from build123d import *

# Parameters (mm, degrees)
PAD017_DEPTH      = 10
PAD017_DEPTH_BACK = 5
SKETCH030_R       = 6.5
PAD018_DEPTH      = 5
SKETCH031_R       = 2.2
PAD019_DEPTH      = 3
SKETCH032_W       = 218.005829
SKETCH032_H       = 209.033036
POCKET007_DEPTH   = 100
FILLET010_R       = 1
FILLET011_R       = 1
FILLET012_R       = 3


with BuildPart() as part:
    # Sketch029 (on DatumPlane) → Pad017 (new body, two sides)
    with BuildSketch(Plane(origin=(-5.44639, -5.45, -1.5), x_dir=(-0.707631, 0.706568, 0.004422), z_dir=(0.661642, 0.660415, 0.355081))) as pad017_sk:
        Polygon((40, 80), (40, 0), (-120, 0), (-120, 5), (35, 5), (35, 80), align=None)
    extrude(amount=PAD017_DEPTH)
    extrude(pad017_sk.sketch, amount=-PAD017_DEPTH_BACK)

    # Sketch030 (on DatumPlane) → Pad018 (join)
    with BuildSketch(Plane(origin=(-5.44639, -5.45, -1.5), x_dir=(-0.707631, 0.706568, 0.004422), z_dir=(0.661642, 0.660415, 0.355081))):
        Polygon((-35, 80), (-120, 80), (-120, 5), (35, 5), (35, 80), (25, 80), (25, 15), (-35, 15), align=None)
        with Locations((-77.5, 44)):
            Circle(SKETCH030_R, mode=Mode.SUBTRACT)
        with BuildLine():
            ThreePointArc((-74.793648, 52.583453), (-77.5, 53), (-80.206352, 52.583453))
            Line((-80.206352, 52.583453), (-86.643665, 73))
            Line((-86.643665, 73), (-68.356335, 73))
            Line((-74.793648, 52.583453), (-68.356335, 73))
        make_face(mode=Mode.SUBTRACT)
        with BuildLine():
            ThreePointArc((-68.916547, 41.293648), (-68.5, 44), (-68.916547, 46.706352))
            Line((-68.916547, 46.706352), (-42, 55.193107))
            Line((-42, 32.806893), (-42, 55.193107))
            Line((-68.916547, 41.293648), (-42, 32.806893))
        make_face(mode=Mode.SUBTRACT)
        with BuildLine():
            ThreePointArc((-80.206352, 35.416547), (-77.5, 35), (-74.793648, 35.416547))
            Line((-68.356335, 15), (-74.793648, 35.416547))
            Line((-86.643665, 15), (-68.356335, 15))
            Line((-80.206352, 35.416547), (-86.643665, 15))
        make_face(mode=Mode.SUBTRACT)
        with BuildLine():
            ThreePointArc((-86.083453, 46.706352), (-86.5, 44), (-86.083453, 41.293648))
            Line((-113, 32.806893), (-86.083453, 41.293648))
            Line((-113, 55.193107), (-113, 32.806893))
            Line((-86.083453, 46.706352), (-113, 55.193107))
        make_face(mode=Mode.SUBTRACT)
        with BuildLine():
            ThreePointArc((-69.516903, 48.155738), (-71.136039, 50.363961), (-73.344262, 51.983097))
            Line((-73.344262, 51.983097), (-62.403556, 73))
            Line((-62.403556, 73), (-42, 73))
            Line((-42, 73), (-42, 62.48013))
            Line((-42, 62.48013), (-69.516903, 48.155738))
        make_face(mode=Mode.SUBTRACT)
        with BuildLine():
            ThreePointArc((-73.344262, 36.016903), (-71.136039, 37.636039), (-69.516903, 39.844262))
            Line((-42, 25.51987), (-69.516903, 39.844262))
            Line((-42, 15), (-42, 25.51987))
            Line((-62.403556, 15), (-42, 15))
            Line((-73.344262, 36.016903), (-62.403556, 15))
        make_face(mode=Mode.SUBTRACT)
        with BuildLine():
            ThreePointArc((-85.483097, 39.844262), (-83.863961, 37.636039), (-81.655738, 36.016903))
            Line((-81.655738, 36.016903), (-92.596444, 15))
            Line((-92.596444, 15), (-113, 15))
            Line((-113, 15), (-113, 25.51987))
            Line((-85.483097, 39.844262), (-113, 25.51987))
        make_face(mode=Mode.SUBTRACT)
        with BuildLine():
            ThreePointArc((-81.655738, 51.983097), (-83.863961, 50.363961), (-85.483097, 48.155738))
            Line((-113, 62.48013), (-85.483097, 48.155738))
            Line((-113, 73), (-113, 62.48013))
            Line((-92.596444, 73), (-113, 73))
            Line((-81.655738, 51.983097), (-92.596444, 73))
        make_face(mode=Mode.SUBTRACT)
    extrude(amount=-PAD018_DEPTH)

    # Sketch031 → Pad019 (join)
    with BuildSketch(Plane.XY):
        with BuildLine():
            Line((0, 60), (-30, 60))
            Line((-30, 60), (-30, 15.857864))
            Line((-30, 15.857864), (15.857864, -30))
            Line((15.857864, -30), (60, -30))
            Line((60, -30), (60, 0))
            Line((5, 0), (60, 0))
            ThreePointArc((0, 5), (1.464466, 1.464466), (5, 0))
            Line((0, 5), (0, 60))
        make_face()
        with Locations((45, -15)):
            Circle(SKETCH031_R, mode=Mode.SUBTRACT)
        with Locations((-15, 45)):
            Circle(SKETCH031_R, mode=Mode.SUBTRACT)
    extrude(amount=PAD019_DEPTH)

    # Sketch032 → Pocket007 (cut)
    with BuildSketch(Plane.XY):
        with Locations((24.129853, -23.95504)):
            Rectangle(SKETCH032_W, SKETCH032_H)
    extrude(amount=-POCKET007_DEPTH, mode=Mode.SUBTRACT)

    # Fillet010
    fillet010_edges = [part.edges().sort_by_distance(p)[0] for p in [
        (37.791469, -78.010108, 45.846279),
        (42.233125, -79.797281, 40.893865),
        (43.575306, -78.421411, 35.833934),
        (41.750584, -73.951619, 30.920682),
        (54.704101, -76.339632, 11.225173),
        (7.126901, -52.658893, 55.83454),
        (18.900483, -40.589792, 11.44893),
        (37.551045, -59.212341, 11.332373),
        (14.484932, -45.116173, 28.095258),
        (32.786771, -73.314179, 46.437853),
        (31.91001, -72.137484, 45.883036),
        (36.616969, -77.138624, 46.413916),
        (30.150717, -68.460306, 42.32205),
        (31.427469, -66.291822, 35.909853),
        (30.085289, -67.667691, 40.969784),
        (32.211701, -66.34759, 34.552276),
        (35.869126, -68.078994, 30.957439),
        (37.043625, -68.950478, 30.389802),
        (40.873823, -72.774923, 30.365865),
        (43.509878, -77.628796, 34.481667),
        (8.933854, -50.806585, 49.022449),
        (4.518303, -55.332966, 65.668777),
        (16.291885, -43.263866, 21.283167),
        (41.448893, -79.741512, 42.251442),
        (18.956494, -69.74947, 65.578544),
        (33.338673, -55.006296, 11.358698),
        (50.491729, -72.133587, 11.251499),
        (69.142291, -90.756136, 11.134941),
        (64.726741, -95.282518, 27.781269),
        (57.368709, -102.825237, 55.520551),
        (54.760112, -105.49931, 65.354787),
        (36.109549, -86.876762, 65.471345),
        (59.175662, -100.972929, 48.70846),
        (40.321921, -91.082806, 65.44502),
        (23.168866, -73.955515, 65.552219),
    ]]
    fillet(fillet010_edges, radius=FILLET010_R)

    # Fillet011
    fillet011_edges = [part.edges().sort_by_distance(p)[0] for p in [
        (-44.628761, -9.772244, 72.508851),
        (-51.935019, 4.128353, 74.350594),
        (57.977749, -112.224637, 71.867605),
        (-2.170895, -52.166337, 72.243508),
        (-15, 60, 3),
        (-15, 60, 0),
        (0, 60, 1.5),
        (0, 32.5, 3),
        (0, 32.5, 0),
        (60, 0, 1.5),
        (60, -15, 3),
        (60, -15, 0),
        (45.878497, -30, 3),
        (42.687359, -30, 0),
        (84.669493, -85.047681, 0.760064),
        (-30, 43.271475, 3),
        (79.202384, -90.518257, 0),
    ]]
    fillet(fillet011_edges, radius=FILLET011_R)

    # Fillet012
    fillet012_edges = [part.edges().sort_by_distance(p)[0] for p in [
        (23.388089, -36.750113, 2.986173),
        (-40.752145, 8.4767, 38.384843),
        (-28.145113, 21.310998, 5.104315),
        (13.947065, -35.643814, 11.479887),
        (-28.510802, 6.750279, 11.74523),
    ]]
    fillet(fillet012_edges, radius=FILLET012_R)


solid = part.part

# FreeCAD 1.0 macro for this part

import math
import FreeCAD as App
import Part
import Sketcher
from FreeCAD import Vector
Q = App.Units.Quantity


def edges_at(feature, points):
    """Names of the edges that pass closest to the given points."""
    edges = feature.Shape.Edges
    near = lambda p: min(range(len(edges)), key=lambda i: edges[i].distToShape(Part.Vertex(*p))[0])
    return sorted({f"Edge{near(p) + 1}" for p in points})


def add_polygon(sketch, points):
    """Adds a closed chain of lines whose ends are joined by coincident constraints."""
    first, n = sketch.GeometryCount, len(points)
    for a, b in zip(points, points[1:] + points[:1]):
        sketch.addGeometry(Part.LineSegment(App.Vector(*a, 0), App.Vector(*b, 0)), False)
    for i in range(n):
        sketch.addConstraint(Sketcher.Constraint("Coincident", first + i, 2, first + (i + 1) % n, 1))

doc = App.newDocument("Part")
params = doc.addObject("Spreadsheet::Sheet", "Params")
for row, (alias, value) in enumerate([
    ("sketch1_width", "5 mm"),
    ("sketch1_width2", "155 mm"),
    ("sketch1_height", "80 mm"),
    ("pad1_length", "10 mm"),
    ("pad1_length2", "5 mm"),
    ("sketch2_diameter", "13 mm"),
    ("sketch2_width", "85 mm"),
    ("sketch2_width2", "155 mm"),
    ("sketch2_width3", "10 mm"),
    ("sketch2_height", "75 mm"),
    ("pad2_length", "5 mm"),
    ("sketch3_radius", "5 mm"),
    ("sketch3_diameter", "4.4 mm"),
    ("sketch3_width", "30 mm"),
    ("sketch3_width2", "55 mm"),
    ("pad3_length", "3 mm"),
    ("pocket1_length", "100 mm"),
    ("fillet_radius", "1 mm"),
    ("fillet2_radius", "1 mm"),
    ("fillet3_radius", "3 mm"),
], start=1):
    params.set(f"A{row}", alias)
    params.set(f"B{row}", "=" + value)
    params.setAlias(f"B{row}", alias)

body = doc.addObject("PartDesign::Body", "Body")

# Sketch on an angled plane
sketch1 = body.newObject("Sketcher::SketchObject", "Sketch")
sketch1.Placement = App.Placement(Vector(-5.44639, -5.45, -1.5), App.Rotation(Vector(-0.707631091, 0.706568245, 0.004422042), Vector(-0.247968499, -0.254192085, 0.934825122), Vector(0.661641793, 0.660414794, 0.355080889), "ZXY"))
add_polygon(sketch1, [(40, 0), (40, 80), (35, 80), (35, 5), (-120, 5), (-120, 0)])  # lines 0-5
sketch1.addConstraint([
    Sketcher.Constraint("Vertical", 0),
    Sketcher.Constraint("Horizontal", 1),
    Sketcher.Constraint("Vertical", 2),
    Sketcher.Constraint("Horizontal", 3),
    Sketcher.Constraint("Vertical", 4),
    Sketcher.Constraint("Horizontal", 5),
    Sketcher.Constraint("PointOnObject", 4, 2, -1),
    Sketcher.Constraint("Equal", 1, 4),
    Sketcher.Constraint("DistanceX", 1, 2, 1, 1, Q("5 mm")),
    Sketcher.Constraint("DistanceX", 3, 2, 3, 1, Q("155 mm")),
    Sketcher.Constraint("DistanceY", 0, 1, 0, 2, Q("80 mm")),
    Sketcher.Constraint("DistanceX", -1, 1, 0, 2, Q("40 mm")),
])
sketch1.setExpression("Constraints[14]", "Params.sketch1_width")
sketch1.setExpression("Constraints[15]", "Params.sketch1_width2")
sketch1.setExpression("Constraints[16]", "Params.sketch1_height")
pad1 = body.newObject("PartDesign::Pad", "Pad")
pad1.Profile = sketch1
pad1.Type = "TwoLengths"
pad1.setExpression("Length", "Params.pad1_length")
pad1.setExpression("Length2", "Params.pad1_length2")

# Sketch on an angled plane
sketch2 = body.newObject("Sketcher::SketchObject", "Sketch001")
sketch2.Placement = App.Placement(Vector(-5.44639, -5.45, -1.5), App.Rotation(Vector(-0.707631091, 0.706568245, 0.004422042), Vector(-0.247968499, -0.254192085, 0.934825122), Vector(0.661641793, 0.660414794, 0.355080889), "ZXY"))
add_polygon(sketch2, [(-35, 80), (-120, 80), (-120, 5), (35, 5), (35, 80), (25, 80), (25, 15), (-35, 15)])  # lines 0-7
sketch2.addGeometry(Part.LineSegment(Vector(-113, 26, 0), Vector(-85, 40, 0)), False)  # 8
sketch2.addGeometry(Part.ArcOfCircle(Part.Circle(Vector(-78, 44, 0), Vector(0, 0, 1), 9), math.radians(-153), math.radians(-117)), False)  # 9
sketch2.addGeometry(Part.LineSegment(Vector(-82, 36, 0), Vector(-93, 15, 0)), False)  # 10
sketch2.addGeometry(Part.LineSegment(Vector(-93, 15, 0), Vector(-113, 15, 0)), False)  # 11
sketch2.addGeometry(Part.LineSegment(Vector(-113, 15, 0), Vector(-113, 26, 0)), False)  # 12
sketch2.addGeometry(Part.LineSegment(Vector(-87, 15, 0), Vector(-80, 35, 0)), False)  # 13
sketch2.addGeometry(Part.ArcOfCircle(Part.Circle(Vector(-78, 44, 0), Vector(0, 0, 1), 9), math.radians(-107), math.radians(-73)), False)  # 14
sketch2.addGeometry(Part.LineSegment(Vector(-75, 35, 0), Vector(-68, 15, 0)), False)  # 15
sketch2.addGeometry(Part.LineSegment(Vector(-68, 15, 0), Vector(-87, 15, 0)), False)  # 16
sketch2.addGeometry(Part.LineSegment(Vector(-62, 15, 0), Vector(-73, 36, 0)), False)  # 17
sketch2.addGeometry(Part.ArcOfCircle(Part.Circle(Vector(-77, 44, 0), Vector(0, 0, 1), 9), math.radians(-63), math.radians(-27)), False)  # 18
sketch2.addGeometry(Part.LineSegment(Vector(-70, 40, 0), Vector(-42, 26, 0)), False)  # 19
sketch2.addGeometry(Part.LineSegment(Vector(-42, 26, 0), Vector(-42, 15, 0)), False)  # 20
sketch2.addGeometry(Part.LineSegment(Vector(-42, 15, 0), Vector(-62, 15, 0)), False)  # 21
sketch2.addGeometry(Part.LineSegment(Vector(-113, 55, 0), Vector(-86, 47, 0)), False)  # 22
sketch2.addGeometry(Part.ArcOfCircle(Part.Circle(Vector(-77, 44, 0), Vector(0, 0, 1), 9), math.radians(163), math.radians(197)), False)  # 23
sketch2.addGeometry(Part.LineSegment(Vector(-86, 41, 0), Vector(-113, 33, 0)), False)  # 24
sketch2.addGeometry(Part.LineSegment(Vector(-113, 33, 0), Vector(-113, 55, 0)), False)  # 25
sketch2.addGeometry(Part.LineSegment(Vector(-93, 73, 0), Vector(-82, 52, 0)), False)  # 26
sketch2.addGeometry(Part.ArcOfCircle(Part.Circle(Vector(-78, 44, 0), Vector(0, 0, 1), 9), math.radians(117), math.radians(153)), False)  # 27
sketch2.addGeometry(Part.LineSegment(Vector(-85, 48, 0), Vector(-113, 62, 0)), False)  # 28
sketch2.addGeometry(Part.LineSegment(Vector(-113, 62, 0), Vector(-113, 73, 0)), False)  # 29
sketch2.addGeometry(Part.LineSegment(Vector(-113, 73, 0), Vector(-93, 73, 0)), False)  # 30
sketch2.addGeometry(Part.Circle(Vector(-78, 44, 0), Vector(0, 0, 1), 6), False)  # 31
sketch2.addGeometry(Part.LineSegment(Vector(-42, 33, 0), Vector(-69, 41, 0)), False)  # 32
sketch2.addGeometry(Part.ArcOfCircle(Part.Circle(Vector(-78, 44, 0), Vector(0, 0, 1), 9), math.radians(-17), math.radians(17)), False)  # 33
sketch2.addGeometry(Part.LineSegment(Vector(-69, 47, 0), Vector(-42, 55, 0)), False)  # 34
sketch2.addGeometry(Part.LineSegment(Vector(-42, 55, 0), Vector(-42, 33, 0)), False)  # 35
sketch2.addGeometry(Part.LineSegment(Vector(-68, 73, 0), Vector(-75, 53, 0)), False)  # 36
sketch2.addGeometry(Part.ArcOfCircle(Part.Circle(Vector(-78, 44, 0), Vector(0, 0, 1), 9), math.radians(73), math.radians(107)), False)  # 37
sketch2.addGeometry(Part.LineSegment(Vector(-80, 53, 0), Vector(-87, 73, 0)), False)  # 38
sketch2.addGeometry(Part.LineSegment(Vector(-87, 73, 0), Vector(-68, 73, 0)), False)  # 39
sketch2.addGeometry(Part.LineSegment(Vector(-42, 62, 0), Vector(-70, 48, 0)), False)  # 40
sketch2.addGeometry(Part.ArcOfCircle(Part.Circle(Vector(-77, 44, 0), Vector(0, 0, 1), 9), math.radians(27), math.radians(63)), False)  # 41
sketch2.addGeometry(Part.LineSegment(Vector(-73, 52, 0), Vector(-62, 73, 0)), False)  # 42
sketch2.addGeometry(Part.LineSegment(Vector(-62, 73, 0), Vector(-42, 73, 0)), False)  # 43
sketch2.addGeometry(Part.LineSegment(Vector(-42, 73, 0), Vector(-42, 62, 0)), False)  # 44
sketch2.addConstraint([
    Sketcher.Constraint("Coincident", 8, 2, 9, 1),
    Sketcher.Constraint("Coincident", 9, 2, 10, 1),
    Sketcher.Constraint("Coincident", 10, 2, 11, 1),
    Sketcher.Constraint("Coincident", 11, 2, 12, 1),
    Sketcher.Constraint("Coincident", 12, 2, 8, 1),
    Sketcher.Constraint("Coincident", 13, 2, 14, 1),
    Sketcher.Constraint("Coincident", 14, 2, 15, 1),
    Sketcher.Constraint("Coincident", 15, 2, 16, 1),
    Sketcher.Constraint("Coincident", 16, 2, 13, 1),
    Sketcher.Constraint("Coincident", 17, 2, 18, 1),
    Sketcher.Constraint("Coincident", 18, 2, 19, 1),
    Sketcher.Constraint("Coincident", 19, 2, 20, 1),
    Sketcher.Constraint("Coincident", 20, 2, 21, 1),
    Sketcher.Constraint("Coincident", 21, 2, 17, 1),
    Sketcher.Constraint("Coincident", 22, 2, 23, 1),
    Sketcher.Constraint("Coincident", 23, 2, 24, 1),
    Sketcher.Constraint("Coincident", 24, 2, 25, 1),
    Sketcher.Constraint("Coincident", 25, 2, 22, 1),
    Sketcher.Constraint("Coincident", 26, 2, 27, 1),
    Sketcher.Constraint("Coincident", 27, 2, 28, 1),
    Sketcher.Constraint("Coincident", 28, 2, 29, 1),
    Sketcher.Constraint("Coincident", 29, 2, 30, 1),
    Sketcher.Constraint("Coincident", 30, 2, 26, 1),
    Sketcher.Constraint("Coincident", 32, 2, 33, 1),
    Sketcher.Constraint("Coincident", 33, 2, 34, 1),
    Sketcher.Constraint("Coincident", 34, 2, 35, 1),
    Sketcher.Constraint("Coincident", 35, 2, 32, 1),
    Sketcher.Constraint("Coincident", 36, 2, 37, 1),
    Sketcher.Constraint("Coincident", 37, 2, 38, 1),
    Sketcher.Constraint("Coincident", 38, 2, 39, 1),
    Sketcher.Constraint("Coincident", 39, 2, 36, 1),
    Sketcher.Constraint("Coincident", 40, 2, 41, 1),
    Sketcher.Constraint("Coincident", 41, 2, 42, 1),
    Sketcher.Constraint("Coincident", 42, 2, 43, 1),
    Sketcher.Constraint("Coincident", 43, 2, 44, 1),
    Sketcher.Constraint("Coincident", 44, 2, 40, 1),
    Sketcher.Constraint("Horizontal", 0),
    Sketcher.Constraint("Vertical", 1),
    Sketcher.Constraint("Horizontal", 2),
    Sketcher.Constraint("Vertical", 3),
    Sketcher.Constraint("Horizontal", 4),
    Sketcher.Constraint("Vertical", 5),
    Sketcher.Constraint("Horizontal", 6),
    Sketcher.Constraint("Vertical", 7),
    Sketcher.Constraint("Horizontal", 11),
    Sketcher.Constraint("Vertical", 12),
    Sketcher.Constraint("Horizontal", 16),
    Sketcher.Constraint("Vertical", 20),
    Sketcher.Constraint("Horizontal", 21),
    Sketcher.Constraint("Vertical", 25),
    Sketcher.Constraint("Vertical", 29),
    Sketcher.Constraint("Horizontal", 30),
    Sketcher.Constraint("Vertical", 35),
    Sketcher.Constraint("Horizontal", 39),
    Sketcher.Constraint("Horizontal", 43),
    Sketcher.Constraint("Vertical", 44),
    Sketcher.Constraint("Coincident", 18, 3, 9, 3),
    Sketcher.Constraint("Coincident", 23, 3, 18, 3),
    Sketcher.Constraint("Coincident", 27, 3, 9, 3),
    Sketcher.Constraint("Coincident", 31, 3, 9, 3),
    Sketcher.Constraint("Coincident", 33, 3, 9, 3),
    Sketcher.Constraint("Coincident", 37, 3, 9, 3),
    Sketcher.Constraint("Coincident", 41, 3, 9, 3),
    Sketcher.Constraint("Equal", 9, 18),
    Sketcher.Constraint("Equal", 14, 23),
    Sketcher.Constraint("Equal", 18, 27),
    Sketcher.Constraint("Equal", 23, 33),
    Sketcher.Constraint("Equal", 33, 37),
    Sketcher.Constraint("Equal", 27, 41),
    Sketcher.Constraint("Symmetric", 3, 2, 7, 2, -2),
    Sketcher.Constraint("Perpendicular", 8, 17),
    Sketcher.Constraint("Perpendicular", 10, 19),
    Sketcher.Constraint("Perpendicular", 13, 22),
    Sketcher.Constraint("Perpendicular", 15, 24),
    Sketcher.Constraint("Parallel", 17, 26),
    Sketcher.Constraint("Parallel", 19, 28),
    Sketcher.Constraint("Parallel", 22, 32),
    Sketcher.Constraint("Parallel", 24, 34),
    Sketcher.Constraint("Perpendicular", 32, 36),
    Sketcher.Constraint("Perpendicular", 34, 38),
    Sketcher.Constraint("Perpendicular", 26, 40),
    Sketcher.Constraint("Perpendicular", 28, 42),
    Sketcher.Constraint("Horizontal", 6, 2, 10, 2),
    Sketcher.Constraint("Horizontal", 13, 2, 14, 2),
    Sketcher.Constraint("Horizontal", 11, 2, 15, 2),
    Sketcher.Constraint("Horizontal", 9, 2, 17, 2),
    Sketcher.Constraint("Horizontal", 8, 2, 18, 2),
    Sketcher.Constraint("Horizontal", 12, 2, 19, 2),
    Sketcher.Constraint("Horizontal", 16, 2, 20, 2),
    Sketcher.Constraint("Horizontal", 23, 2, 32, 2),
    Sketcher.Constraint("Horizontal", 22, 2, 33, 2),
    Sketcher.Constraint("Horizontal", 25, 2, 34, 2),
    Sketcher.Constraint("Horizontal", 24, 2, 35, 2),
    Sketcher.Constraint("Horizontal", 36, 2, 37, 2),
    Sketcher.Constraint("Horizontal", 30, 2, 38, 2),
    Sketcher.Constraint("Horizontal", 27, 2, 40, 2),
    Sketcher.Constraint("Horizontal", 26, 2, 41, 2),
    Sketcher.Constraint("Horizontal", 39, 2, 42, 2),
    Sketcher.Constraint("Horizontal", 28, 2, 44, 2),
    Sketcher.Constraint("Vertical", 14, 3, 37, 3),
    Sketcher.Constraint("Vertical", 22, 2, 23, 2),
    Sketcher.Constraint("Vertical", 12, 2, 24, 2),
    Sketcher.Constraint("Vertical", 9, 2, 26, 2),
    Sketcher.Constraint("Vertical", 8, 2, 27, 2),
    Sketcher.Constraint("Vertical", 25, 2, 28, 2),
    Sketcher.Constraint("Vertical", 10, 2, 30, 2),
    Sketcher.Constraint("Vertical", 20, 2, 34, 2),
    Sketcher.Constraint("Vertical", 14, 2, 36, 2),
    Sketcher.Constraint("Vertical", 16, 2, 38, 2),
    Sketcher.Constraint("Diameter", 31, Q("13 mm")),
    Sketcher.Constraint("DistanceX", 0, 2, 0, 1, Q("85 mm")),
    Sketcher.Constraint("DistanceX", 2, 1, 2, 2, Q("155 mm")),
    Sketcher.Constraint("DistanceX", 4, 2, 4, 1, Q("10 mm")),
    Sketcher.Constraint("DistanceY", 1, 2, 1, 1, Q("75 mm")),
    Sketcher.Constraint("DistanceY", 5, 2, 5, 1, Q("65 mm")),
    Sketcher.Constraint("DistanceY", -1, 1, 23, 3, Q("44 mm")),
    Sketcher.Constraint("DistanceY", -1, 1, 0, 2, Q("80 mm")),
    Sketcher.Constraint("DistanceX", 11, 2, -1, 1, Q("113 mm")),
    Sketcher.Constraint("DistanceX", 19, 2, -1, 1, Q("42 mm")),
    Sketcher.Constraint("Angle", 8, Q("27.499998 deg")),
    Sketcher.Constraint("Angle", 13, Q("72.499999 deg")),
    Sketcher.Constraint("Radius", 9, Q("8.999996 mm")),
    Sketcher.Constraint("Radius", 14, Q("9.000008 mm")),
    Sketcher.Constraint("DistanceX", 16, 2, 16, 1, Q("18.28733 mm")),
    Sketcher.Constraint("DistanceY", 12, 1, 12, 2, Q("10.51987 mm")),
    Sketcher.Constraint("DistanceX", 23, 2, 13, 2, Q("5.877101 mm")),
    Sketcher.Constraint("DistanceX", 11, 2, 11, 1, Q("20.403556 mm")),
])
sketch2.setExpression("Constraints[117]", "Params.sketch2_diameter")
sketch2.setExpression("Constraints[118]", "Params.sketch2_width")
sketch2.setExpression("Constraints[119]", "Params.sketch2_width2")
sketch2.setExpression("Constraints[120]", "Params.sketch2_width3")
sketch2.setExpression("Constraints[121]", "Params.sketch2_height")
pad2 = body.newObject("PartDesign::Pad", "Pad001")
pad2.Profile = sketch2
pad2.setExpression("Length", "Params.pad2_length")
pad2.Reversed = True

# Sketch on XY plane
sketch3 = body.newObject("Sketcher::SketchObject", "Sketch002")
sketch3.AttachmentSupport = (doc.getObject("XY_Plane"), [""])
sketch3.MapMode = "FlatFace"
sketch3.addGeometry([
    Part.LineSegment(Vector(0, 60, 0), Vector(-30, 60, 0)),  # 0
    Part.LineSegment(Vector(-30, 60, 0), Vector(-30, 15.9, 0)),  # 1
    Part.LineSegment(Vector(-30, 15.9, 0), Vector(15.9, -30, 0)),  # 2
    Part.LineSegment(Vector(15.9, -30, 0), Vector(60, -30, 0)),  # 3
    Part.LineSegment(Vector(60, -30, 0), Vector(60, 0, 0)),  # 4
    Part.LineSegment(Vector(60, 0, 0), Vector(5, 0, 0)),  # 5
    Part.ArcOfCircle(Part.Circle(Vector(5, 5, 0), Vector(0, 0, 1), 5), math.radians(180), math.radians(270)),  # 6
    Part.LineSegment(Vector(0, 5, 0), Vector(0, 60, 0)),  # 7
    Part.Circle(Vector(45, -15, 0), Vector(0, 0, 1), 2.2),  # 8
    Part.Circle(Vector(-15, 45, 0), Vector(0, 0, 1), 2.2),  # 9
], False)
sketch3.addConstraint([
    Sketcher.Constraint("Coincident", 0, 2, 1, 1),
    Sketcher.Constraint("Coincident", 1, 2, 2, 1),
    Sketcher.Constraint("Coincident", 2, 2, 3, 1),
    Sketcher.Constraint("Coincident", 3, 2, 4, 1),
    Sketcher.Constraint("Coincident", 4, 2, 5, 1),
    Sketcher.Constraint("Tangent", 5, 2, 6, 2),
    Sketcher.Constraint("Tangent", 6, 1, 7, 1),
    Sketcher.Constraint("Coincident", 7, 2, 0, 1),
    Sketcher.Constraint("Horizontal", 0),
    Sketcher.Constraint("Vertical", 1),
    Sketcher.Constraint("Horizontal", 3),
    Sketcher.Constraint("Vertical", 4),
    Sketcher.Constraint("Horizontal", 5),
    Sketcher.Constraint("Vertical", 7),
    Sketcher.Constraint("Equal", 8, 9),
    Sketcher.Constraint("PointOnObject", 4, 2, -1),
    Sketcher.Constraint("PointOnObject", 6, 1, -2),
    Sketcher.Constraint("Equal", 3, 1),
    Sketcher.Constraint("Equal", 0, 4),
    Sketcher.Constraint("Equal", 5, 7),
    Sketcher.Constraint("Radius", 6, Q("5 mm")),
    Sketcher.Constraint("Diameter", 8, Q("4.4 mm")),
    Sketcher.Constraint("DistanceX", 0, 2, 0, 1, Q("30 mm")),
    Sketcher.Constraint("DistanceX", 5, 2, 5, 1, Q("55 mm")),
    Sketcher.Constraint("DistanceX", -1, 1, 8, 3, Q("45 mm")),
    Sketcher.Constraint("DistanceY", 8, 3, -1, 1, Q("15 mm")),
    Sketcher.Constraint("DistanceX", 9, 3, -1, 1, Q("15 mm")),
    Sketcher.Constraint("DistanceY", -1, 1, 9, 3, Q("45 mm")),
    Sketcher.Constraint("DistanceX", 3, 1, 3, 2, Q("44.142136 mm")),
])
sketch3.setExpression("Constraints[20]", "Params.sketch3_radius")
sketch3.setExpression("Constraints[21]", "Params.sketch3_diameter")
sketch3.setExpression("Constraints[22]", "Params.sketch3_width")
sketch3.setExpression("Constraints[23]", "Params.sketch3_width2")
pad3 = body.newObject("PartDesign::Pad", "Pad002")
pad3.Profile = sketch3
pad3.setExpression("Length", "Params.pad3_length")

# Sketch on XY plane
sketch4 = body.newObject("Sketcher::SketchObject", "Sketch003")
sketch4.AttachmentSupport = (doc.getObject("XY_Plane"), [""])
sketch4.MapMode = "FlatFace"
add_polygon(sketch4, [(-85, 81), (-85, -128), (133, -128), (133, 81)])  # lines 0-3
sketch4.addConstraint([
    Sketcher.Constraint("Vertical", 0),
    Sketcher.Constraint("Horizontal", 1),
    Sketcher.Constraint("Vertical", 2),
    Sketcher.Constraint("Horizontal", 3),
    Sketcher.Constraint("DistanceX", 1, 1, 1, 2, Q("218.005829 mm")),
    Sketcher.Constraint("DistanceY", 0, 2, 0, 1, Q("209.033036 mm")),
    Sketcher.Constraint("DistanceX", 0, 2, -1, 1, Q("84.873062 mm")),
    Sketcher.Constraint("DistanceY", 0, 2, -1, 1, Q("128.471558 mm")),
])
pocket1 = body.newObject("PartDesign::Pocket", "Pocket")
pocket1.Profile = sketch4
pocket1.setExpression("Length", "Params.pocket1_length")
doc.recompute()

fillet = body.newObject("PartDesign::Fillet", "Fillet")
fillet.Base = (pocket1, edges_at(pocket1, [
    (37.791, -78.01, 45.846),
    (42.233, -79.797, 40.894),
    (43.575, -78.421, 35.834),
    (41.751, -73.952, 30.921),
    (54.704, -76.34, 11.225),
    (7.127, -52.659, 55.835),
    (18.9, -40.59, 11.449),
    (37.551, -59.212, 11.332),
    (14.485, -45.116, 28.095),
    (32.787, -73.314, 46.438),
    (31.91, -72.137, 45.883),
    (36.617, -77.139, 46.414),
    (30.151, -68.46, 42.322),
    (31.427, -66.292, 35.91),
    (30.085, -67.668, 40.97),
    (32.212, -66.348, 34.552),
    (35.869, -68.079, 30.957),
    (37.044, -68.95, 30.39),
    (40.874, -72.775, 30.366),
    (43.51, -77.629, 34.482),
    (8.934, -50.807, 49.022),
    (4.518, -55.333, 65.669),
    (16.292, -43.264, 21.283),
    (41.449, -79.741, 42.251),
    (18.957, -69.749, 65.579),
    (33.339, -55.006, 11.359),
    (50.492, -72.134, 11.252),
    (69.142, -90.756, 11.135),
    (64.727, -95.283, 27.781),
    (57.369, -102.825, 55.521),
    (54.76, -105.499, 65.355),
    (36.11, -86.877, 65.471),
    (59.176, -100.973, 48.709),
    (40.322, -91.083, 65.445),
    (23.169, -73.955, 65.552),
]))
fillet.setExpression("Radius", "Params.fillet_radius")
doc.recompute()

fillet2 = body.newObject("PartDesign::Fillet", "Fillet001")
fillet2.Base = (fillet, edges_at(fillet, [
    (-44.629, -9.772, 72.509),
    (-51.935, 4.128, 74.351),
    (57.978, -112.225, 71.868),
    (-2.171, -52.166, 72.244),
    (-15, 60, 3),
    (-15, 60, 0),
    (0, 60, 1.5),
    (0, 32.5, 3),
    (0, 32.5, 0),
    (60, 0, 1.5),
    (60, -15, 3),
    (60, -15, 0),
    (45.879, -30, 3),
    (42.687, -30, 0),
    (84.669, -85.048, 0.76),
    (-30, 43.271, 3),
    (79.202, -90.518, 0),
]))
fillet2.setExpression("Radius", "Params.fillet2_radius")
doc.recompute()

fillet3 = body.newObject("PartDesign::Fillet", "Fillet002")
fillet3.Base = (fillet2, edges_at(fillet2, [
    (23.388, -36.75, 2.986),
    (-40.752, 8.477, 38.385),
    (-28.145, 21.311, 5.104),
    (13.947, -35.644, 11.48),
    (-28.511, 6.75, 11.745),
]))
fillet3.setExpression("Radius", "Params.fillet3_radius")

doc.recompute()
